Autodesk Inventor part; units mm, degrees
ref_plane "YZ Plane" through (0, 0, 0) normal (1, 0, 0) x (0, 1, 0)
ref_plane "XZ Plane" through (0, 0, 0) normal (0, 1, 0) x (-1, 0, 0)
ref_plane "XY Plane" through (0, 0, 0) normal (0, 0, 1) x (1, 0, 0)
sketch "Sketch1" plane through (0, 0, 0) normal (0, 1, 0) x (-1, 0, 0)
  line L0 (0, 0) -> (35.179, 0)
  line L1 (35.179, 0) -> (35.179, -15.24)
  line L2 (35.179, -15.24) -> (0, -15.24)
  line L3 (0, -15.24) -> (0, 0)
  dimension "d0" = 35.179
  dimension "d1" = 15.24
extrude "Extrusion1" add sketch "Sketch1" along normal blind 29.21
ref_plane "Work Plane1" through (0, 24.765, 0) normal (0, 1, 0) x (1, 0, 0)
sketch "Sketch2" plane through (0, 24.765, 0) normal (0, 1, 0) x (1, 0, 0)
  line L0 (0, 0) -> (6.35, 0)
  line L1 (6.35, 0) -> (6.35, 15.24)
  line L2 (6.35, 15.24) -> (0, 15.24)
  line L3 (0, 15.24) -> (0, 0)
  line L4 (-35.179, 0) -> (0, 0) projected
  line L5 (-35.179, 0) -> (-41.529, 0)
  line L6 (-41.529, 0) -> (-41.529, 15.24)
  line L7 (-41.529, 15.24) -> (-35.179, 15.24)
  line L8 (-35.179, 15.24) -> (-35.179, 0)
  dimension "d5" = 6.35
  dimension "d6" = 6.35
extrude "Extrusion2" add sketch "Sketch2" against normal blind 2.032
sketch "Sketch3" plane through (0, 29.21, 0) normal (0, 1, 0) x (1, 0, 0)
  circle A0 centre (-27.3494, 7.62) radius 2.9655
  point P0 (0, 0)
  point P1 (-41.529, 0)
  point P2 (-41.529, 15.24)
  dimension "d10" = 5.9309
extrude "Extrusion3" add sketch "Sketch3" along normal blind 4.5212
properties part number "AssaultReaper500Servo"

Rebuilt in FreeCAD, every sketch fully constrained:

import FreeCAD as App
import Part
import Sketcher
from FreeCAD import Vector
Q = App.Units.Quantity


def add_polygon(sketch, points):
    """Adds a closed chain of lines whose ends are joined by coincident constraints."""
    first, n = sketch.GeometryCount, len(points)
    for a, b in zip(points, points[1:] + points[:1]):
        sketch.addGeometry(Part.LineSegment(App.Vector(*a, 0), App.Vector(*b, 0)), False)
    for i in range(n):
        sketch.addConstraint(Sketcher.Constraint("Coincident", first + i, 2, first + (i + 1) % n, 1))

doc = App.newDocument("Part")
body = doc.addObject("PartDesign::Body", "Body")

sketch1 = body.newObject("Sketcher::SketchObject", "Sketch")
sketch1.AttachmentSupport = (doc.getObject("XZ_Plane"), [""])
sketch1.MapMode = "FlatFace"
add_polygon(sketch1, [(-35, 0), (0, 0), (0, -15), (-35, -15)])
sketch1.addConstraint(Sketcher.Constraint("Horizontal", 0))
sketch1.addConstraint(Sketcher.Constraint("Vertical", 1))
sketch1.addConstraint(Sketcher.Constraint("Horizontal", 2))
sketch1.addConstraint(Sketcher.Constraint("Vertical", 3))
sketch1.addConstraint(Sketcher.Constraint("Coincident", 0, 2, -1, 1))
sketch1.addConstraint(Sketcher.Constraint("DistanceY", 1, 2, 1, 1, Q("0.6 in")))
sketch1.addConstraint(Sketcher.Constraint("DistanceX", 0, 1, 0, 2, Q("1.385 in")))
pad1 = body.newObject("PartDesign::Pad", "Pad")
pad1.Profile = sketch1
pad1.Length = Q("1.15 in")
pad1.Reversed = True

sketch2 = body.newObject("Sketcher::SketchObject", "Sketch001")
sketch2.AttachmentSupport = (doc.getObject("XZ_Plane"), [""])
sketch2.MapMode = "FlatFace"
sketch2.AttachmentOffset = App.Placement(Vector(0, 0, -0.975 * 25.4), App.Rotation())
add_polygon(sketch2, [(0, -15), (0, 0), (6, 0), (6, -15)])
add_polygon(sketch2, [(-42, 0), (-35, 0), (-35, -15), (-42, -15)])
sketch2.addConstraint(Sketcher.Constraint("Vertical", 0))
sketch2.addConstraint(Sketcher.Constraint("Horizontal", 1))
sketch2.addConstraint(Sketcher.Constraint("Vertical", 2))
sketch2.addConstraint(Sketcher.Constraint("Horizontal", 3))
sketch2.addConstraint(Sketcher.Constraint("Horizontal", 4))
sketch2.addConstraint(Sketcher.Constraint("Vertical", 5))
sketch2.addConstraint(Sketcher.Constraint("Horizontal", 6))
sketch2.addConstraint(Sketcher.Constraint("Vertical", 7))
sketch2.addConstraint(Sketcher.Constraint("Coincident", 0, 2, -1, 1))
sketch2.addConstraint(Sketcher.Constraint("PointOnObject", 4, 2, -1))
sketch2.addConstraint(Sketcher.Constraint("Horizontal", 3, 2, 5, 2))
sketch2.addConstraint(Sketcher.Constraint("Equal", 3, 4))
sketch2.addConstraint(Sketcher.Constraint("DistanceX", 1, 1, 1, 2, Q("0.25 in")))
sketch2.addConstraint(Sketcher.Constraint("DistanceY", 0, 1, 0, 2, Q("0.6 in")))
sketch2.addConstraint(Sketcher.Constraint("DistanceX", 4, 2, -1, 1, Q("1.385 in")))
pad2 = body.newObject("PartDesign::Pad", "Pad001")
pad2.Profile = sketch2
pad2.Length = Q("0.08 in")

sketch3 = body.newObject("Sketcher::SketchObject", "Sketch002")
sketch3.AttachmentSupport = (doc.getObject("XZ_Plane"), [""])
sketch3.MapMode = "FlatFace"
sketch3.AttachmentOffset = App.Placement(Vector(0, 0, -1.15 * 25.4), App.Rotation())
sketch3.addGeometry(Part.Circle(Vector(-27.3, -7.6, 0), Vector(0, 0, 1), 3), False)
sketch3.addConstraint(Sketcher.Constraint("Diameter", 0, Q("0.2335 in")))
sketch3.addConstraint(Sketcher.Constraint("DistanceY", 0, 3, -1, 1, Q("0.3 in")))
sketch3.addConstraint(Sketcher.Constraint("DistanceX", 0, 3, -1, 1, 27.3494))
pad3 = body.newObject("PartDesign::Pad", "Pad002")
pad3.Profile = sketch3
pad3.Length = Q("0.178 in")
pad3.Reversed = True

doc.recompute()
